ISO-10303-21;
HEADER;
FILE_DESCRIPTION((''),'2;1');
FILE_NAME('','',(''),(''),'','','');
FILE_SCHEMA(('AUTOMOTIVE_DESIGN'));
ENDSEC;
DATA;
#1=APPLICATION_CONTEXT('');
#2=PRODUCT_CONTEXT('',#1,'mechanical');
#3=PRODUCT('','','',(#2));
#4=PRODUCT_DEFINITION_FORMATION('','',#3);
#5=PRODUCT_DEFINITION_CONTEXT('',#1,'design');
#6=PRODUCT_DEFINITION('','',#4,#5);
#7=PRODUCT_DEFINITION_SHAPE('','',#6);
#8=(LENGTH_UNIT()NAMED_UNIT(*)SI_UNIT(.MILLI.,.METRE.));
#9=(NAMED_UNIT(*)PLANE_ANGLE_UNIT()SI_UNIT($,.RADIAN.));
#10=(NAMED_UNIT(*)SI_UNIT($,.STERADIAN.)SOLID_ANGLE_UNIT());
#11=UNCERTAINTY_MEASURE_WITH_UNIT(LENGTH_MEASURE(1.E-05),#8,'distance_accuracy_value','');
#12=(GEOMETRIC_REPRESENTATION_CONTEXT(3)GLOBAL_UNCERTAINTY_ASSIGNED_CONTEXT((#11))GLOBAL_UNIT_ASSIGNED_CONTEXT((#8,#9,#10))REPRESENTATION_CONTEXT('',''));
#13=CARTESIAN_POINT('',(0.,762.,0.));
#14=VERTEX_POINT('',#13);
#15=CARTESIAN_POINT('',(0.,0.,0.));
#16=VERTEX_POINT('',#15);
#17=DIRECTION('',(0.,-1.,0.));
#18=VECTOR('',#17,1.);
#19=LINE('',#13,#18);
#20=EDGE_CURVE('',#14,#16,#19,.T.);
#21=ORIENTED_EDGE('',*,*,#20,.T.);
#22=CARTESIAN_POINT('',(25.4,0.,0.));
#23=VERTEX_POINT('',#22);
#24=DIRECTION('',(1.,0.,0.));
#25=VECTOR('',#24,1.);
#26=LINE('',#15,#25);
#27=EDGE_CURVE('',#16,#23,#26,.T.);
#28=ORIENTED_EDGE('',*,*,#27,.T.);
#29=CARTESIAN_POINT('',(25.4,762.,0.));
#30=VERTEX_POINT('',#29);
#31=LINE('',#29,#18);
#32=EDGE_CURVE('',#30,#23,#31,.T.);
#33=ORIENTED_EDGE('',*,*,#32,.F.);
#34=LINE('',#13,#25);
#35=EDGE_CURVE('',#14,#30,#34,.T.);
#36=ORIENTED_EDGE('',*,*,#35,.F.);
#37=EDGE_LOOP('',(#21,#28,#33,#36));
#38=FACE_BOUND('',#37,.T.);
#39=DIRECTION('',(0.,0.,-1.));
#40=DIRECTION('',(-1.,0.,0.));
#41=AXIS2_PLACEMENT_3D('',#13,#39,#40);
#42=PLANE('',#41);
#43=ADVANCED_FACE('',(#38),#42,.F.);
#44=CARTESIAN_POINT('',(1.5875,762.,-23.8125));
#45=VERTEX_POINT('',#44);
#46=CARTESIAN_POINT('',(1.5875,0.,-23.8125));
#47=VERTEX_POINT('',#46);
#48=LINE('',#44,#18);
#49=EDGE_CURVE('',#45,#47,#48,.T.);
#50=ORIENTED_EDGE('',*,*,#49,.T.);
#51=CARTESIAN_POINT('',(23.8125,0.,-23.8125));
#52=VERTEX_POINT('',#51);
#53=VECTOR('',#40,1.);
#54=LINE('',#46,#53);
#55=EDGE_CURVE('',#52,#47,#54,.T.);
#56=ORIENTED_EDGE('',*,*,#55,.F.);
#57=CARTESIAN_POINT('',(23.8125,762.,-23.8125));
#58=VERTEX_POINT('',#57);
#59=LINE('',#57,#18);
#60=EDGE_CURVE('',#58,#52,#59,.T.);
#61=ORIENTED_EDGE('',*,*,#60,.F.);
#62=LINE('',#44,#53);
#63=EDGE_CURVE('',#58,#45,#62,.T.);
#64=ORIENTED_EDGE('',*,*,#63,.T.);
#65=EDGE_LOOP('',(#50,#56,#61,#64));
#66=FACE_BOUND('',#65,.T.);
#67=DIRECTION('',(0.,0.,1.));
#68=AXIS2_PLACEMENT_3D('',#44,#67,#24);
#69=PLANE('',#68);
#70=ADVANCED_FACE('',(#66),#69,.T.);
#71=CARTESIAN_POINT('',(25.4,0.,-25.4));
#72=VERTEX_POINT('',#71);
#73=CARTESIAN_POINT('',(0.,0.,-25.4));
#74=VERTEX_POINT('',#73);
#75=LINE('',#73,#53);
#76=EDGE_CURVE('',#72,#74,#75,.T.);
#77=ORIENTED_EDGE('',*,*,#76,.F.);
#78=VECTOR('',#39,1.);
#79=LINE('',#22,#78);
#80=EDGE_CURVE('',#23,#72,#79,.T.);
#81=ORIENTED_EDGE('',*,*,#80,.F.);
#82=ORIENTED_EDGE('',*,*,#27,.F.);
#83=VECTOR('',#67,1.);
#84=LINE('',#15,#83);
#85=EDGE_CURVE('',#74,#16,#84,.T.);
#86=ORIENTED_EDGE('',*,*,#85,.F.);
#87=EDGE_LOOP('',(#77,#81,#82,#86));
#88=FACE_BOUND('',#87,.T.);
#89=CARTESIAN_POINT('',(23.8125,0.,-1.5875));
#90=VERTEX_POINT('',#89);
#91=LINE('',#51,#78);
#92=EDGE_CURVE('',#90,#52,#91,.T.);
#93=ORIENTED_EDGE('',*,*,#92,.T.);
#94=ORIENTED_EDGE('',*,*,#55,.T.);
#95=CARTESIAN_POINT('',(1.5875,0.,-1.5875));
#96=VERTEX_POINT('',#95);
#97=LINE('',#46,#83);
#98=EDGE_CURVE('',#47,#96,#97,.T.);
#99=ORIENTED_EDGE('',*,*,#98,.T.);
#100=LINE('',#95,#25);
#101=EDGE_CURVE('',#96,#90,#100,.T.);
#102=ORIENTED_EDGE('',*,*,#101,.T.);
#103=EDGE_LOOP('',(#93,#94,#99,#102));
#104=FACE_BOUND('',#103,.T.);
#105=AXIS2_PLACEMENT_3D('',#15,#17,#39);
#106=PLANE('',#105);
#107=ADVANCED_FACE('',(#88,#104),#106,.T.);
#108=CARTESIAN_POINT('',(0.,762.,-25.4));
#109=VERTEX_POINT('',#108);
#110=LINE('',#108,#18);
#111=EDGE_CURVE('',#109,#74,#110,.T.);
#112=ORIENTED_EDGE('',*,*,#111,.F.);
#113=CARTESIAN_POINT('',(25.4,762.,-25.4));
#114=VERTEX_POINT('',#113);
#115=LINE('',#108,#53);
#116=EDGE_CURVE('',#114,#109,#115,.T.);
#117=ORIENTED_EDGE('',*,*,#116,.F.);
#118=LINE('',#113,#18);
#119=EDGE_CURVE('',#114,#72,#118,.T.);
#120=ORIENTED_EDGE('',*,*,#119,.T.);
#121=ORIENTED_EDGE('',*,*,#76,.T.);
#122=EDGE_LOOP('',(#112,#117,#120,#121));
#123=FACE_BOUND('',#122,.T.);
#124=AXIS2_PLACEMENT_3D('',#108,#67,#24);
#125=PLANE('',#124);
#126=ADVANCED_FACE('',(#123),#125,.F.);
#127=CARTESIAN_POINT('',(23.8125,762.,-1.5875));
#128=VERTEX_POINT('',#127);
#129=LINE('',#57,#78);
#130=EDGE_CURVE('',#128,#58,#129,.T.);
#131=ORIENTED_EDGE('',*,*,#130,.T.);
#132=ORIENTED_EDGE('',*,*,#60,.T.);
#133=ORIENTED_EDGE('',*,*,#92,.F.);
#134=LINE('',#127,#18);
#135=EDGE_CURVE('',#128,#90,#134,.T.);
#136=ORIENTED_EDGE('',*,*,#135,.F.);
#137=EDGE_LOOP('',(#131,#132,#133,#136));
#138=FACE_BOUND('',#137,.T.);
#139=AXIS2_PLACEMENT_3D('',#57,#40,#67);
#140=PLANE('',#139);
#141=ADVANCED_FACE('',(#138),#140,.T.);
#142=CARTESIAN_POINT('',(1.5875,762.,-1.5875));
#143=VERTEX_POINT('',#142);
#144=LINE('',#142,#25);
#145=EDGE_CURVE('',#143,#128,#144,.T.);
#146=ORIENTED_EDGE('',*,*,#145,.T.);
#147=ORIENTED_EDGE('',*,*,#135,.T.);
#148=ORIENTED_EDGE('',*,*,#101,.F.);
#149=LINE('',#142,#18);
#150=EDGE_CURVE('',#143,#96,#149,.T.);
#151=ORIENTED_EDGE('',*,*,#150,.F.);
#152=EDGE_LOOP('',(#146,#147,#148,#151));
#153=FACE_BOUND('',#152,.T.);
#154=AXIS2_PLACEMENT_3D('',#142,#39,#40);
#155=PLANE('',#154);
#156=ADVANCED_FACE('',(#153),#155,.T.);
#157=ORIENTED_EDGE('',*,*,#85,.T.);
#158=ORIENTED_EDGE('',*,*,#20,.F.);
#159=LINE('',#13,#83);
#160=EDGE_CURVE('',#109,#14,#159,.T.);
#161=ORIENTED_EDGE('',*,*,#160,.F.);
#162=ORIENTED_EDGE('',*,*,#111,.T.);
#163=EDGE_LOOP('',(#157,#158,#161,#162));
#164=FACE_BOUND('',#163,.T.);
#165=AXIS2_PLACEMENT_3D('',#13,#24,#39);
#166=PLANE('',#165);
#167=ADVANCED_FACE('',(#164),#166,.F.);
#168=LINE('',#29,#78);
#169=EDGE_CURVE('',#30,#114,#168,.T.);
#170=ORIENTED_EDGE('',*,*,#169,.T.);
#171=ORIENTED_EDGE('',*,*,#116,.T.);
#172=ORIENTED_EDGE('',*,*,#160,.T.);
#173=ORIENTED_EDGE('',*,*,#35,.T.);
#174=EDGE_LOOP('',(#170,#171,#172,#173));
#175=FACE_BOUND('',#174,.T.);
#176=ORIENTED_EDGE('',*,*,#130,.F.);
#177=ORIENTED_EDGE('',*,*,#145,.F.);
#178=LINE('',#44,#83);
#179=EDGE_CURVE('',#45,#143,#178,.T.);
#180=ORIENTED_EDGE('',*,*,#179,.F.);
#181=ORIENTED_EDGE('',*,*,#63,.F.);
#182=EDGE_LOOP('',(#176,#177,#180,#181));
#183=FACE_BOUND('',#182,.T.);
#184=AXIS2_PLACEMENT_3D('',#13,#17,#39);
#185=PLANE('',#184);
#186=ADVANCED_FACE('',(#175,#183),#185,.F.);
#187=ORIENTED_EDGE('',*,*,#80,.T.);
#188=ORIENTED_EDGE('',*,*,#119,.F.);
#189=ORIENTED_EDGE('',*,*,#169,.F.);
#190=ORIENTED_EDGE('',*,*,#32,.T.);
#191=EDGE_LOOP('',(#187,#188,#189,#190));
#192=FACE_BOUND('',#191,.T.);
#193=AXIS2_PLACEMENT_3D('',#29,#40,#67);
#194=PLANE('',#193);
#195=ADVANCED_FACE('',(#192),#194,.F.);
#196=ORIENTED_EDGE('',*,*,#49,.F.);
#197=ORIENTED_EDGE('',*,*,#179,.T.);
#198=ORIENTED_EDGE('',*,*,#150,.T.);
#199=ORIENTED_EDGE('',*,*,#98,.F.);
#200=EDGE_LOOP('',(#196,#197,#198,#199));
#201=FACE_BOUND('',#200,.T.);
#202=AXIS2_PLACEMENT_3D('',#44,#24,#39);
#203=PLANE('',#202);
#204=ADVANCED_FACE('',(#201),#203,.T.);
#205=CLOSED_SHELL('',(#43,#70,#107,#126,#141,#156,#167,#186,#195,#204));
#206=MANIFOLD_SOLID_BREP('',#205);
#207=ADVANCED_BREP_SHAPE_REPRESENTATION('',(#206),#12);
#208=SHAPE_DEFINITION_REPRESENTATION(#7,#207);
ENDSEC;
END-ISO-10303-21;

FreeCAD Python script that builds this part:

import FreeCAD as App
import Part
import Sketcher

V = App.Vector
Q = App.Units.Quantity


def add_polygon(sketch, points):
    """Adds a closed chain of lines whose ends are joined by coincident constraints."""
    first, n = sketch.GeometryCount, len(points)
    for a, b in zip(points, points[1:] + points[:1]):
        sketch.addGeometry(Part.LineSegment(App.Vector(*a, 0), App.Vector(*b, 0)), False)
    for i in range(n):
        sketch.addConstraint(Sketcher.Constraint("Coincident", first + i, 2, first + (i + 1) % n, 1))

doc = App.newDocument("Part")
body = doc.addObject("PartDesign::Body", "Body")

# Sketch on XZ plane
sketch1 = body.newObject("Sketcher::SketchObject", "Sketch")
sketch1.AttachmentSupport = (doc.getObject("XZ_Plane"), [""])
sketch1.MapMode = "FlatFace"
add_polygon(sketch1, [(0, -25.4), (0, 0), (25.4, 0), (25.4, -25.4)])  # lines 0-3
add_polygon(sketch1, [(23.8125, -1.5875), (1.5875, -1.5875), (1.5875, -23.8125), (23.8125, -23.8125)])  # lines 4-7
sketch1.addConstraint([
    Sketcher.Constraint("Vertical", 0),
    Sketcher.Constraint("Horizontal", 1),
    Sketcher.Constraint("Vertical", 2),
    Sketcher.Constraint("Horizontal", 3),
    Sketcher.Constraint("Horizontal", 4),
    Sketcher.Constraint("Vertical", 5),
    Sketcher.Constraint("Horizontal", 6),
    Sketcher.Constraint("Vertical", 7),
    Sketcher.Constraint("Coincident", 0, 2, -1, 1),
    Sketcher.Constraint("Equal", 3, 0),
    Sketcher.Constraint("Equal", 6, 5),
    Sketcher.Constraint("DistanceX", 1, 1, 1, 2, Q("1 in")),
    Sketcher.Constraint("DistanceX", 4, 2, 4, 1, Q("0.875 in")),
    Sketcher.Constraint("DistanceX", -1, 1, 4, 2, Q("0.0625 in")),
    Sketcher.Constraint("DistanceY", 4, 2, -1, 1, Q("0.0625 in")),
])
pad1 = body.newObject("PartDesign::Pad", "Pad")
pad1.Profile = sketch1
pad1.Length = Q("30 in")
pad1.Reversed = True

doc.recompute()
